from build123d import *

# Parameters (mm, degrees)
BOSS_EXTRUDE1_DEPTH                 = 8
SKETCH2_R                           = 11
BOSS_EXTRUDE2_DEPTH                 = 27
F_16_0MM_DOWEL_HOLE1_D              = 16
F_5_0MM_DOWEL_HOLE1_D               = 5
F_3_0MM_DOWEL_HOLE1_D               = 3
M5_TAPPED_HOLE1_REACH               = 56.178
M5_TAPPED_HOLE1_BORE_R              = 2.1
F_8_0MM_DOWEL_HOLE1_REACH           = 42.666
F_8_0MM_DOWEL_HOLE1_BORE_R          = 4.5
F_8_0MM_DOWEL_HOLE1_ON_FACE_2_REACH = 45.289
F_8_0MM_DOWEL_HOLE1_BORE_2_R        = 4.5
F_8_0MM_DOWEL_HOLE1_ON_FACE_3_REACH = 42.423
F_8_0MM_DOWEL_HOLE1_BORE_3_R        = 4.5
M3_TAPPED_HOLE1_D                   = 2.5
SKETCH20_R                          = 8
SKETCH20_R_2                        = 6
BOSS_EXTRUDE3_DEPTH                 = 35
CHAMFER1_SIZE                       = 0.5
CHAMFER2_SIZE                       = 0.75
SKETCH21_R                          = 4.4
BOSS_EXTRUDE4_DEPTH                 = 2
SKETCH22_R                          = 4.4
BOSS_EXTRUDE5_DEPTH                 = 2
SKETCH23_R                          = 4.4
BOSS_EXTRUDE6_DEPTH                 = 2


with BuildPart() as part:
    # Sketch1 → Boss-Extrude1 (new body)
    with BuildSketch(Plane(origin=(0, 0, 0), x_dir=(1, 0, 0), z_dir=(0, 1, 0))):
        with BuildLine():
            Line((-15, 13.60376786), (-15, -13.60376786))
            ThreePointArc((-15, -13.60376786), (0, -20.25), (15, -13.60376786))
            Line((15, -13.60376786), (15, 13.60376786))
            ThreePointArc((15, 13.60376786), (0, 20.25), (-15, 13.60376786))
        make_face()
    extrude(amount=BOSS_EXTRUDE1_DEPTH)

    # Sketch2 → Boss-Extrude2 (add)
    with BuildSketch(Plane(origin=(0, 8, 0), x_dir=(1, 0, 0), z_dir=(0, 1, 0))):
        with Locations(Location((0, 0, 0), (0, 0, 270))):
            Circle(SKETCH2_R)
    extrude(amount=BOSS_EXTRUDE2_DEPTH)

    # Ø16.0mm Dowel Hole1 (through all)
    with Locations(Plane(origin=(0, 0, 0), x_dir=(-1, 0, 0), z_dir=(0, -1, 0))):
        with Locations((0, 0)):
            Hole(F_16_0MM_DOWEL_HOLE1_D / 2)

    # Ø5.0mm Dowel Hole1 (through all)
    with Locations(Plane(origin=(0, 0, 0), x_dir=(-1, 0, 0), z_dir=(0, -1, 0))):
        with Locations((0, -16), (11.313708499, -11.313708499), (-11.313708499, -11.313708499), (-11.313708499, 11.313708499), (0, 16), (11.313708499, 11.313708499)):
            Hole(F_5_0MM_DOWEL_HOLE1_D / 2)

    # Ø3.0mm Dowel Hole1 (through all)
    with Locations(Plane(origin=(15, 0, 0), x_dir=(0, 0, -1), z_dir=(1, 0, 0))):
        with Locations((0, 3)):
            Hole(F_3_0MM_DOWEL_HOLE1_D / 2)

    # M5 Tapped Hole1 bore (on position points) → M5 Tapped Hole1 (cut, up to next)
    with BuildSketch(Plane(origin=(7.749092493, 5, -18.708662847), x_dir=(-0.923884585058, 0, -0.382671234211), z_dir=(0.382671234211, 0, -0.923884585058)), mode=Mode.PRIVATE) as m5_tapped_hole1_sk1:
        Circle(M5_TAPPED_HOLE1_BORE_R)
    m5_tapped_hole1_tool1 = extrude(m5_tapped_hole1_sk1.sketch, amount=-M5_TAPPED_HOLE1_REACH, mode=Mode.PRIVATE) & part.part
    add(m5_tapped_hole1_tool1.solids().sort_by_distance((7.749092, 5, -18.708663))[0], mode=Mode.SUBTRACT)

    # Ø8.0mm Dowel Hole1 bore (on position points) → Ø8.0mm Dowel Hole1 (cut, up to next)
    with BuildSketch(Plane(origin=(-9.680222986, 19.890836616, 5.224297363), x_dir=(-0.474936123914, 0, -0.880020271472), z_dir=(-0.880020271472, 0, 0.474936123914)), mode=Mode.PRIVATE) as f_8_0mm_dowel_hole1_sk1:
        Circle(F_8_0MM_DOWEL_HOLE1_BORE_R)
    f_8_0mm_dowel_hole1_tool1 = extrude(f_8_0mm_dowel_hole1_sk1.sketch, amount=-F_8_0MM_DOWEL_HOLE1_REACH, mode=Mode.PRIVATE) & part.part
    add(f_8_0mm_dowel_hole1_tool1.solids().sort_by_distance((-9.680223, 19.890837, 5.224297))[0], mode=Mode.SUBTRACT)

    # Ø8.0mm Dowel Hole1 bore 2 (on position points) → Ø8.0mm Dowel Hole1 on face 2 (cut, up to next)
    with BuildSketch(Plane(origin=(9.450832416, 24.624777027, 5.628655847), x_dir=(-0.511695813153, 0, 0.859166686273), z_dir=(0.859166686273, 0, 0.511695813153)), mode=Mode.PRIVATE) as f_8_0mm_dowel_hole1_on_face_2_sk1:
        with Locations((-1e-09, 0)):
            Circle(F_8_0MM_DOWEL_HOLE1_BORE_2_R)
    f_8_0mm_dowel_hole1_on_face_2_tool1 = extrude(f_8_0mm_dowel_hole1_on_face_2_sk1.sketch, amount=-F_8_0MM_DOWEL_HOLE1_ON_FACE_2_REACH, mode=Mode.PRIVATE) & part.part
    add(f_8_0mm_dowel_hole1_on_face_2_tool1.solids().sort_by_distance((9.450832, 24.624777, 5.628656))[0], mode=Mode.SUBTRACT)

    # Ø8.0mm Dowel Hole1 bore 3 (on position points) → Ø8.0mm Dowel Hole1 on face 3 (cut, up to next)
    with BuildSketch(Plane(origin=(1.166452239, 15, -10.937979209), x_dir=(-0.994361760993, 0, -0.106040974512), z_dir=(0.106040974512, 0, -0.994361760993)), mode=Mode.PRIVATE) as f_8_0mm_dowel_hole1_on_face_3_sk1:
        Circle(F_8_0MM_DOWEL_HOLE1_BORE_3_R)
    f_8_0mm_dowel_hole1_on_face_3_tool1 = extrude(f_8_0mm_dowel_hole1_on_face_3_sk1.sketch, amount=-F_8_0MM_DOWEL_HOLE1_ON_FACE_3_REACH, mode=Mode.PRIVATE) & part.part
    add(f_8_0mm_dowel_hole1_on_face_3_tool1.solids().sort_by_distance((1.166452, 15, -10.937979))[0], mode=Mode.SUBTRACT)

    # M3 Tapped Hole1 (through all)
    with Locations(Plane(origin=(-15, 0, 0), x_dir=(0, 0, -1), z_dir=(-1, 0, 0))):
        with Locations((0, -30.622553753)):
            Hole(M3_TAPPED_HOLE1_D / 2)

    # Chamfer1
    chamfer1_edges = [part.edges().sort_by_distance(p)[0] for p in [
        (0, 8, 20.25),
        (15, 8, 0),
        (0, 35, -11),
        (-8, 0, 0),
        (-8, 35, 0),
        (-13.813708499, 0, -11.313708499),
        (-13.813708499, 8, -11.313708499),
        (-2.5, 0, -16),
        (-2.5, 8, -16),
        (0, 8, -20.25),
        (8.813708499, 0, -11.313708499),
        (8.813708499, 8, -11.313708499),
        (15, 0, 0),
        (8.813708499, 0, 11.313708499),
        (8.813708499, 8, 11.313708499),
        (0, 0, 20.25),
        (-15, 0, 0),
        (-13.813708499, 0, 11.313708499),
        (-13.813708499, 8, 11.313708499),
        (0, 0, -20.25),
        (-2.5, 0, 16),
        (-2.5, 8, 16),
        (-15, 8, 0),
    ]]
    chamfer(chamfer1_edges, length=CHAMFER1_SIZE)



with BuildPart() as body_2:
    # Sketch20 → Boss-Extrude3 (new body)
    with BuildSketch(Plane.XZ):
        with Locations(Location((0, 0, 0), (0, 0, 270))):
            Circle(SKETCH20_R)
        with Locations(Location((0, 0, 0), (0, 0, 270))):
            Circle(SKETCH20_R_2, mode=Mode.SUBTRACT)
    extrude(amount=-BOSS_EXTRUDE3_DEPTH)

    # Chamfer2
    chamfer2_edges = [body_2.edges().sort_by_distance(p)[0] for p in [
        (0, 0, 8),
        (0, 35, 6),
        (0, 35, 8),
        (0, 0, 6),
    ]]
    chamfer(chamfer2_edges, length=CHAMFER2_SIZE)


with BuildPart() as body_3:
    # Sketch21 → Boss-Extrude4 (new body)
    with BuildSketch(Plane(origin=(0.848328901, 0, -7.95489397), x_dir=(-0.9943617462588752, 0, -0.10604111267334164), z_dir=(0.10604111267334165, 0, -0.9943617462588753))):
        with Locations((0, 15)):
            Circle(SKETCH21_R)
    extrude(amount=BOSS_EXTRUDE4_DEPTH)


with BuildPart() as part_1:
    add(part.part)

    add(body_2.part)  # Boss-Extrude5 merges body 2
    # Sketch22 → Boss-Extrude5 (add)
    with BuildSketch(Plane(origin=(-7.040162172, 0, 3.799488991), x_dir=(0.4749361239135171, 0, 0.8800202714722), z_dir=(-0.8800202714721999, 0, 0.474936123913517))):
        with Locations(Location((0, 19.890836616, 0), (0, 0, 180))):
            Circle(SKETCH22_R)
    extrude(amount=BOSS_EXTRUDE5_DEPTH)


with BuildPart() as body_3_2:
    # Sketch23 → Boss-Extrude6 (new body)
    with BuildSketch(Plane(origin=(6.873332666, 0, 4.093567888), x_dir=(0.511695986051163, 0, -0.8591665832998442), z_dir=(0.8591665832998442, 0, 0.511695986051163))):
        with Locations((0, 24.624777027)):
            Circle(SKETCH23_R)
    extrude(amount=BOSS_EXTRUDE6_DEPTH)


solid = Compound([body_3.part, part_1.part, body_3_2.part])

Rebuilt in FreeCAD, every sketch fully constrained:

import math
import FreeCAD as App
import Part
import Sketcher
from FreeCAD import Vector
Q = App.Units.Quantity


def edges_at(feature, points):
    """Names of the edges that pass closest to the given points."""
    edges = feature.Shape.Edges
    near = lambda p: min(range(len(edges)), key=lambda i: edges[i].distToShape(Part.Vertex(*p))[0])
    return sorted({f"Edge{near(p) + 1}" for p in points})

doc = App.newDocument("Part")
body = doc.addObject("PartDesign::Body", "Body")

# Sketch on XZ plane
sketch1 = body.newObject("Sketcher::SketchObject", "Sketch")
sketch1.AttachmentSupport = (doc.getObject("XZ_Plane"), [""])
sketch1.MapMode = "FlatFace"
sketch1.addGeometry(Part.LineSegment(Vector(-15, -14, 0), Vector(-15, 14, 0)), False)
sketch1.addGeometry(Part.ArcOfCircle(Part.Circle(Vector(0, 0, 0), Vector(0, 0, 1), 20), math.radians(42), math.radians(138)), False)
sketch1.addGeometry(Part.LineSegment(Vector(15, 14, 0), Vector(15, -14, 0)), False)
sketch1.addGeometry(Part.ArcOfCircle(Part.Circle(Vector(0, 0, 0), Vector(0, 0, 1), 20), math.radians(-138), math.radians(-42)), False)
sketch1.addConstraint(Sketcher.Constraint("Coincident", 0, 2, 1, 2))
sketch1.addConstraint(Sketcher.Constraint("Coincident", 1, 1, 2, 1))
sketch1.addConstraint(Sketcher.Constraint("Coincident", 2, 2, 3, 2))
sketch1.addConstraint(Sketcher.Constraint("Coincident", 3, 1, 0, 1))
sketch1.addConstraint(Sketcher.Constraint("Vertical", 0))
sketch1.addConstraint(Sketcher.Constraint("Vertical", 2))
sketch1.addConstraint(Sketcher.Constraint("Coincident", 1, 3, -1, 1))
sketch1.addConstraint(Sketcher.Constraint("Coincident", 3, 3, -1, 1))
sketch1.addConstraint(Sketcher.Constraint("Equal", 1, 3))
sketch1.addConstraint(Sketcher.Constraint("Horizontal", 0, 2, 1, 1))
sketch1.addConstraint(Sketcher.Constraint("Radius", 1, Q("20.25 mm")))
sketch1.addConstraint(Sketcher.Constraint("DistanceX", 0, 2, -1, 1, Q("15 mm")))
pad1 = body.newObject("PartDesign::Pad", "Pad")
pad1.Profile = sketch1
pad1.Length = 8
pad1.Reversed = True

# Sketch on XZ plane
sketch2 = body.newObject("Sketcher::SketchObject", "Sketch001")
sketch2.AttachmentSupport = (doc.getObject("XZ_Plane"), [""])
sketch2.MapMode = "FlatFace"
sketch2.AttachmentOffset = App.Placement(Vector(0, 0, -8), App.Rotation())
sketch2.addGeometry(Part.Circle(Vector(0, 0, 0), Vector(0, 0, 1), 11), False)
sketch2.addConstraint(Sketcher.Constraint("Coincident", 0, 3, -1, 1))
sketch2.addConstraint(Sketcher.Constraint("Diameter", 0, Q("22 mm")))
pad2 = body.newObject("PartDesign::Pad", "Pad001")
pad2.Profile = sketch2
pad2.Length = 27
pad2.Reversed = True

# Sketch on XZ plane
sketch3 = body.newObject("Sketcher::SketchObject", "Sketch002")
sketch3.AttachmentSupport = (doc.getObject("XZ_Plane"), [""])
sketch3.MapMode = "FlatFace"
sketch3.addGeometry(Part.Circle(Vector(0, 0, 0), Vector(0, 0, 1), 8), False)
sketch3.addConstraint(Sketcher.Constraint("Coincident", 0, 3, -1, 1))
sketch3.addConstraint(Sketcher.Constraint("Diameter", 0, Q("16 mm")))
doc.recompute()
hole = body.newObject("PartDesign::Hole", "Hole")
hole.Profile = sketch3
hole.ThreadType = "None"
hole.Diameter = 16
hole.DepthType = "ThroughAll"

# Sketch on XZ plane
sketch4 = body.newObject("Sketcher::SketchObject", "Sketch003")
sketch4.AttachmentSupport = (doc.getObject("XZ_Plane"), [""])
sketch4.MapMode = "FlatFace"
sketch4.addGeometry(Part.Circle(Vector(0, 16, 0), Vector(0, 0, 1), 2.5), False)
sketch4.addGeometry(Part.Circle(Vector(-11.3, 11.3, 0), Vector(0, 0, 1), 2.5), False)
sketch4.addGeometry(Part.Circle(Vector(11.3, 11.3, 0), Vector(0, 0, 1), 2.5), False)
sketch4.addGeometry(Part.Circle(Vector(11.3, -11.3, 0), Vector(0, 0, 1), 2.5), False)
sketch4.addGeometry(Part.Circle(Vector(0, -16, 0), Vector(0, 0, 1), 2.5), False)
sketch4.addGeometry(Part.Circle(Vector(-11.3, -11.3, 0), Vector(0, 0, 1), 2.5), False)
sketch4.addConstraint(Sketcher.Constraint("Equal", 0, 1))
sketch4.addConstraint(Sketcher.Constraint("Equal", 1, 2))
sketch4.addConstraint(Sketcher.Constraint("Equal", 2, 3))
sketch4.addConstraint(Sketcher.Constraint("Equal", 3, 4))
sketch4.addConstraint(Sketcher.Constraint("Equal", 4, 5))
sketch4.addConstraint(Sketcher.Constraint("Symmetric", 1, 3, 3, 3, -1, 1))
sketch4.addConstraint(Sketcher.Constraint("Symmetric", 0, 3, 4, 3, -1, 1))
sketch4.addConstraint(Sketcher.Constraint("Symmetric", 2, 3, 5, 3, -1, 1))
sketch4.addConstraint(Sketcher.Constraint("Symmetric", 1, 3, 2, 3, -2))
sketch4.addConstraint(Sketcher.Constraint("PointOnObject", 0, 3, -2))
sketch4.addConstraint(Sketcher.Constraint("Diameter", 0, Q("5 mm")))
sketch4.addConstraint(Sketcher.Constraint("DistanceY", -1, 1, 0, 3, Q("16 mm")))
sketch4.addConstraint(Sketcher.Constraint("DistanceX", 1, 3, -1, 1, Q("11.313708 mm")))
sketch4.addConstraint(Sketcher.Constraint("DistanceY", -1, 1, 1, 3, Q("11.313708 mm")))
doc.recompute()
hole2 = body.newObject("PartDesign::Hole", "Hole001")
hole2.Profile = sketch4
hole2.ThreadType = "None"
hole2.Diameter = 5
hole2.DepthType = "ThroughAll"

# Sketch on YZ plane
sketch5 = body.newObject("Sketcher::SketchObject", "Sketch004")
sketch5.AttachmentSupport = (doc.getObject("YZ_Plane"), [""])
sketch5.MapMode = "FlatFace"
sketch5.AttachmentOffset = App.Placement(Vector(0, 0, 15), App.Rotation())
sketch5.addGeometry(Part.Circle(Vector(3, 0, 0), Vector(0, 0, 1), 1.5), False)
sketch5.addConstraint(Sketcher.Constraint("PointOnObject", 0, 3, -1))
sketch5.addConstraint(Sketcher.Constraint("Diameter", 0, Q("3 mm")))
sketch5.addConstraint(Sketcher.Constraint("DistanceX", -1, 1, 0, 3, Q("3 mm")))
doc.recompute()
hole3 = body.newObject("PartDesign::Hole", "Hole002")
hole3.Profile = sketch5
hole3.ThreadType = "None"
hole3.Diameter = 3
hole3.DepthType = "ThroughAll"

# Sketch on an angled plane
sketch6 = body.newObject("Sketcher::SketchObject", "Sketch005")
sketch6.Placement = App.Placement(Vector(7.749092, 5, -18.708663), App.Rotation(Vector(-0.923884585, 0, -0.382671234), Vector(0, 1, 0), Vector(0.382671234, 0, -0.923884585), "ZXY"))
sketch6.addGeometry(Part.Circle(Vector(0, 0, 0), Vector(0, 0, 1), 2.1), False)
sketch6.addConstraint(Sketcher.Constraint("Coincident", 0, 3, -1, 1))
sketch6.addConstraint(Sketcher.Constraint("Diameter", 0, Q("4.2 mm")))
pocket1 = body.newObject("PartDesign::Pocket", "Pocket")
pocket1.Profile = sketch6
pocket1.Length = 12.530544

# Sketch on an angled plane
sketch7 = body.newObject("Sketcher::SketchObject", "Sketch006")
sketch7.Placement = App.Placement(Vector(-9.680223, 19.890837, 5.224297), App.Rotation(Vector(-0.474936124, 0, -0.880020271), Vector(0, -0.999999999, 0), Vector(-0.880020271, 0, 0.474936124), "ZXY"))
sketch7.addGeometry(Part.Circle(Vector(0, 0, 0), Vector(0, 0, 1), 4.5), False)
sketch7.addConstraint(Sketcher.Constraint("Coincident", 0, 3, -1, 1))
sketch7.addConstraint(Sketcher.Constraint("Diameter", 0, Q("9 mm")))
pocket2 = body.newObject("PartDesign::Pocket", "Pocket001")
pocket2.Profile = sketch7
pocket2.Type = "UpToFirst"

# Sketch on an angled plane
sketch8 = body.newObject("Sketcher::SketchObject", "Sketch007")
sketch8.Placement = App.Placement(Vector(9.450832, 24.624777, 5.628656), App.Rotation(Vector(-0.511695813, 0, 0.859166686), Vector(0, -0.999999999, 0), Vector(0.859166686, 0, 0.511695813), "ZXY"))
sketch8.addGeometry(Part.Circle(Vector(0, 0, 0), Vector(0, 0, 1), 4.5), False)
sketch8.addConstraint(Sketcher.Constraint("Coincident", 0, 3, -1, 1))
sketch8.addConstraint(Sketcher.Constraint("Diameter", 0, Q("9 mm")))
pocket3 = body.newObject("PartDesign::Pocket", "Pocket002")
pocket3.Profile = sketch8
pocket3.Length = 4.385623

# Sketch on an angled plane
sketch9 = body.newObject("Sketcher::SketchObject", "Sketch008")
sketch9.Placement = App.Placement(Vector(1.166452, 15, -10.937979), App.Rotation(Vector(-0.994361761, 0, -0.106040975), Vector(0, 1, 0), Vector(0.106040975, 0, -0.994361761), "ZXY"))
sketch9.addGeometry(Part.Circle(Vector(0, 0, 0), Vector(0, 0, 1), 4.5), False)
sketch9.addConstraint(Sketcher.Constraint("Coincident", 0, 3, -1, 1))
sketch9.addConstraint(Sketcher.Constraint("Diameter", 0, Q("9 mm")))
pocket4 = body.newObject("PartDesign::Pocket", "Pocket003")
pocket4.Profile = sketch9
pocket4.Type = "UpToFirst"

# Sketch on YZ plane
sketch10 = body.newObject("Sketcher::SketchObject", "Sketch009")
sketch10.AttachmentSupport = (doc.getObject("YZ_Plane"), [""])
sketch10.MapMode = "FlatFace"
sketch10.AttachmentOffset = App.Placement(Vector(0, 0, -15), App.Rotation())
sketch10.addGeometry(Part.Circle(Vector(30.6, 0, 0), Vector(0, 0, 1), 1.2), False)
sketch10.addConstraint(Sketcher.Constraint("PointOnObject", 0, 3, -1))
sketch10.addConstraint(Sketcher.Constraint("Diameter", 0, Q("2.5 mm")))
sketch10.addConstraint(Sketcher.Constraint("DistanceX", -1, 1, 0, 3, Q("30.622554 mm")))
doc.recompute()
hole4 = body.newObject("PartDesign::Hole", "Hole003")
hole4.Profile = sketch10
hole4.ThreadType = "None"
hole4.Diameter = 2.5
hole4.DepthType = "ThroughAll"
hole4.Reversed = True
doc.recompute()

chamfer = body.newObject("PartDesign::Chamfer", "Chamfer")
chamfer.Base = (hole4, edges_at(hole4, [
    (0, 8, 20.25),
    (15, 8, 0),
    (0, 35, -11),
    (-8, 0, 0),
    (-8, 35, 0),
    (-13.814, 0, -11.314),
    (-13.814, 8, -11.314),
    (-2.5, 0, -16),
    (-2.5, 8, -16),
    (0, 8, -20.25),
    (8.814, 0, -11.314),
    (8.814, 8, -11.314),
    (15, 0, 0),
    (8.814, 0, 11.314),
    (8.814, 8, 11.314),
    (0, 0, 20.25),
    (-15, 0, 0),
    (-13.814, 0, 11.314),
    (-13.814, 8, 11.314),
    (0, 0, -20.25),
    (-2.5, 0, 16),
    (-2.5, 8, 16),
    (-15, 8, 0),
]))
chamfer.Size = 0.5
body2 = doc.addObject("PartDesign::Body", "Body001")

# Sketch on XZ plane
sketch11 = body2.newObject("Sketcher::SketchObject", "Sketch010")
sketch11.AttachmentSupport = (doc.getObject("XZ_Plane001"), [""])
sketch11.MapMode = "FlatFace"
sketch11.addGeometry(Part.Circle(Vector(0, 0, 0), Vector(0, 0, 1), 8), False)
sketch11.addGeometry(Part.Circle(Vector(0, 0, 0), Vector(0, 0, 1), 6), False)
sketch11.addConstraint(Sketcher.Constraint("Coincident", 0, 3, -1, 1))
sketch11.addConstraint(Sketcher.Constraint("Coincident", 1, 3, -1, 1))
sketch11.addConstraint(Sketcher.Constraint("Diameter", 0, Q("16 mm")))
sketch11.addConstraint(Sketcher.Constraint("Diameter", 1, Q("12 mm")))
pad3 = body2.newObject("PartDesign::Pad", "Pad002")
pad3.Profile = sketch11
pad3.Length = 35
pad3.Reversed = True
doc.recompute()

chamfer2 = body2.newObject("PartDesign::Chamfer", "Chamfer001")
chamfer2.Base = (pad3, edges_at(pad3, [
    (0, 0, 8),
    (0, 35, 6),
    (0, 35, 8),
    (0, 0, 6),
]))
chamfer2.Size = 0.75
body3 = doc.addObject("PartDesign::Body", "Body002")

# Sketch on an angled plane
sketch12 = body3.newObject("Sketcher::SketchObject", "Sketch011")
sketch12.Placement = App.Placement(Vector(0.848329, 0, -7.954894), App.Rotation(Vector(-0.994361746, 0, -0.106041113), Vector(0, 1, 0), Vector(0.106041113, 0, -0.994361746), "ZXY"))
sketch12.addGeometry(Part.Circle(Vector(0, 15, 0), Vector(0, 0, 1), 4.4), False)
sketch12.addConstraint(Sketcher.Constraint("PointOnObject", 0, 3, -2))
sketch12.addConstraint(Sketcher.Constraint("Diameter", 0, Q("8.8 mm")))
sketch12.addConstraint(Sketcher.Constraint("DistanceY", -1, 1, 0, 3, Q("15 mm")))
pad4 = body3.newObject("PartDesign::Pad", "Pad003")
pad4.Profile = sketch12
pad4.Length = 2
body.AllowCompound = True
doc.recompute()

boolean = body.newObject("PartDesign::Boolean", "Boolean")
boolean.Type = "Fuse"
boolean.addObjects([body2])

# Sketch on an angled plane
sketch13 = body.newObject("Sketcher::SketchObject", "Sketch012")
sketch13.Placement = App.Placement(Vector(-7.040162, 0, 3.799489), App.Rotation(Vector(0.474936124, 0, 0.880020271), Vector(0, 0.999999999, 0), Vector(-0.880020271, 0, 0.474936124), "ZXY"))
sketch13.addGeometry(Part.Circle(Vector(0, 19.9, 0), Vector(0, 0, 1), 4.4), False)
sketch13.addConstraint(Sketcher.Constraint("PointOnObject", 0, 3, -2))
sketch13.addConstraint(Sketcher.Constraint("Diameter", 0, Q("8.8 mm")))
sketch13.addConstraint(Sketcher.Constraint("DistanceY", -1, 1, 0, 3, Q("19.890837 mm")))
pad5 = body.newObject("PartDesign::Pad", "Pad004")
pad5.Profile = sketch13
pad5.Length = 2
body4 = doc.addObject("PartDesign::Body", "Body003")

# Sketch on an angled plane
sketch14 = body4.newObject("Sketcher::SketchObject", "Sketch013")
sketch14.Placement = App.Placement(Vector(6.873333, 0, 4.093568), App.Rotation(Vector(0.511695986, 0, -0.859166583), Vector(0, 0.999999999, 0), Vector(0.859166583, 0, 0.511695986), "ZXY"))
sketch14.addGeometry(Part.Circle(Vector(0, 24.6, 0), Vector(0, 0, 1), 4.4), False)
sketch14.addConstraint(Sketcher.Constraint("PointOnObject", 0, 3, -2))
sketch14.addConstraint(Sketcher.Constraint("Diameter", 0, Q("8.8 mm")))
sketch14.addConstraint(Sketcher.Constraint("DistanceY", -1, 1, 0, 3, Q("24.624777 mm")))
pad6 = body4.newObject("PartDesign::Pad", "Pad005")
pad6.Profile = sketch14
pad6.Length = 2

doc.recompute()
